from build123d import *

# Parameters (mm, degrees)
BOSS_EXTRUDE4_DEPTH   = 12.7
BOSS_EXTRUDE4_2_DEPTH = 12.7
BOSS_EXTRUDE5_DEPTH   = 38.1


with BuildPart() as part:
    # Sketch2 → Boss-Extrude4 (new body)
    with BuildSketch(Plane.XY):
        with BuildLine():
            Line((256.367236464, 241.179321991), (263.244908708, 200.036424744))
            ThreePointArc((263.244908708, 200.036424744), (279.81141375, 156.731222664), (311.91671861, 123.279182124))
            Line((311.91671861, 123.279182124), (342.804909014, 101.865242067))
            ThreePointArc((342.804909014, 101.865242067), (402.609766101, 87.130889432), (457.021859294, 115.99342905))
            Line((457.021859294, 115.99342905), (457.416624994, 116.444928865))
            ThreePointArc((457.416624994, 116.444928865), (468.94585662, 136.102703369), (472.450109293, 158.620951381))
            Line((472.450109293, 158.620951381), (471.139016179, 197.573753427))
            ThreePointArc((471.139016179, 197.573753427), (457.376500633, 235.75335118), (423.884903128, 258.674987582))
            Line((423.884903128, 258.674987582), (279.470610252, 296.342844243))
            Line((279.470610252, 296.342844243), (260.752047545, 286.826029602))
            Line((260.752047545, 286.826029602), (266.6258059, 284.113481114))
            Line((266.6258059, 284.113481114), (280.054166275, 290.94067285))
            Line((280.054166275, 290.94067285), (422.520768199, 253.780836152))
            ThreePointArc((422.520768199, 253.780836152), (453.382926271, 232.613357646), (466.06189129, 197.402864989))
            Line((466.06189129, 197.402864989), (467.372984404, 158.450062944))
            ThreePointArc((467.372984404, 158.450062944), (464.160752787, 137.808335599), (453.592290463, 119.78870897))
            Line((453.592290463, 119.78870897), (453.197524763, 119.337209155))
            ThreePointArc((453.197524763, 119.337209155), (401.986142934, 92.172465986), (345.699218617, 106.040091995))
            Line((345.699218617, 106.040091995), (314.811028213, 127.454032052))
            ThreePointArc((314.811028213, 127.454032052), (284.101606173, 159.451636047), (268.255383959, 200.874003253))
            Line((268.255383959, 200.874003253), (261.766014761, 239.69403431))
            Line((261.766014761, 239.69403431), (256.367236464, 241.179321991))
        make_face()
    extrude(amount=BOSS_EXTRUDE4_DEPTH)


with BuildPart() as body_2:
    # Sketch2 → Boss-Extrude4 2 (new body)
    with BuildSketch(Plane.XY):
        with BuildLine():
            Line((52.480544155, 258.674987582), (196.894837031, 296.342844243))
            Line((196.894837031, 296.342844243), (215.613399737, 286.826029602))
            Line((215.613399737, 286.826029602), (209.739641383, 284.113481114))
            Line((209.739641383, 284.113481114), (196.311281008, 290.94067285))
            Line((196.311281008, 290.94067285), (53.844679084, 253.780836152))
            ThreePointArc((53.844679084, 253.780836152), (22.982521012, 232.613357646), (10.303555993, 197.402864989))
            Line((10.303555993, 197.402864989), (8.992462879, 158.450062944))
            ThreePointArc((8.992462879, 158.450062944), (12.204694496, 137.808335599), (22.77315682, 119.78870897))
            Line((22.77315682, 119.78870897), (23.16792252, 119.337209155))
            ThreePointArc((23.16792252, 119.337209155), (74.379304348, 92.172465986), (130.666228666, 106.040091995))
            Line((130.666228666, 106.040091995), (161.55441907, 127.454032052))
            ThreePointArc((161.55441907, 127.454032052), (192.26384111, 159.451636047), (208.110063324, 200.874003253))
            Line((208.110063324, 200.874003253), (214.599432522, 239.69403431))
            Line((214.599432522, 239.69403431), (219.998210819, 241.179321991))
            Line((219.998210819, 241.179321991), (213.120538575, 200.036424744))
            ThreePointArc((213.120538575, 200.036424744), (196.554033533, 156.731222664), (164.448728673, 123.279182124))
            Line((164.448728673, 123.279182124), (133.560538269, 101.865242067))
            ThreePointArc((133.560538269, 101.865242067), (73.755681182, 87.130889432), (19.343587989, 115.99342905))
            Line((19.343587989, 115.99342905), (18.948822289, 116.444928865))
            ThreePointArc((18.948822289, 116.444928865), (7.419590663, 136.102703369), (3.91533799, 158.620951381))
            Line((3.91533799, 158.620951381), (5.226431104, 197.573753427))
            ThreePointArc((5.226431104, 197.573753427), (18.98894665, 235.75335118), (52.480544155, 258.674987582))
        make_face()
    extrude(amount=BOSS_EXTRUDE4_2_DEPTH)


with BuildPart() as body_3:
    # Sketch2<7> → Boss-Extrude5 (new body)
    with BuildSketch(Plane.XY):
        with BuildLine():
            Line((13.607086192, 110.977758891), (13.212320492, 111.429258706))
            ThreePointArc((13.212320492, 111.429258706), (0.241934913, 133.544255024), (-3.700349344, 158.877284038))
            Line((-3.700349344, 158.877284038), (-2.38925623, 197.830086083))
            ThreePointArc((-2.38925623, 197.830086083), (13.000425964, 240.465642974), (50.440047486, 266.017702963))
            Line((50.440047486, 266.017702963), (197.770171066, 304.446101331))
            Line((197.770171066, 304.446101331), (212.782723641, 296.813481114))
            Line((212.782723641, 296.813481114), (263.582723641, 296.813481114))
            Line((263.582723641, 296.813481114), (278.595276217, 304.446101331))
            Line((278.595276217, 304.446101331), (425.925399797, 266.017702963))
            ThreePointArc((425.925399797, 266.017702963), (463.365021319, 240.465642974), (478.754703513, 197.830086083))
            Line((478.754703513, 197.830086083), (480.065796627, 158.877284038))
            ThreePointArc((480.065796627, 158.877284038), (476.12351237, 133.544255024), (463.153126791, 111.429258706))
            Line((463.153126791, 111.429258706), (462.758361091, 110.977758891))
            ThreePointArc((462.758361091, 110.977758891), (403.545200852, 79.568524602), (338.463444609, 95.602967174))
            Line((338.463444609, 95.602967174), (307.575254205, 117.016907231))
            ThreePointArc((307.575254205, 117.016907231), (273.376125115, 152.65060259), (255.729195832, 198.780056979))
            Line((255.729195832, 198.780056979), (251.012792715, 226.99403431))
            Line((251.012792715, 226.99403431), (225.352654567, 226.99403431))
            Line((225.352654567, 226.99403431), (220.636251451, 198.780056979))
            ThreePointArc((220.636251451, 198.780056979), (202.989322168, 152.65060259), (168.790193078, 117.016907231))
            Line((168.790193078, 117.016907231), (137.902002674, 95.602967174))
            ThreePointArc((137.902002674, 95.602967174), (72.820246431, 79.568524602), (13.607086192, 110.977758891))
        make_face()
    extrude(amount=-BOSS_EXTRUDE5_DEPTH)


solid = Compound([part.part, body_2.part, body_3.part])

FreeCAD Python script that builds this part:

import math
import FreeCAD as App
import Part
import Sketcher

V = App.Vector
Q = App.Units.Quantity

doc = App.newDocument("Part")
body = doc.addObject("PartDesign::Body", "Body")

# Sketch on XY plane
sketch1 = doc.addObject("Sketcher::SketchObject", "Sketch")
body.addObject(sketch1)
sketch1.AttachmentSupport = (doc.XY_Plane, [""])
sketch1.MapMode = "FlatFace"
sketch1.addGeometry([
    Part.LineSegment(V(256.4, 241.2, 0), V(263.2, 200, 0)),  # 0
    Part.ArcOfCircle(Part.Circle(V(378.5, 219.3, 0), V(0, 0, 1), 116.8), math.radians(-171), math.radians(-125)),  # 1
    Part.LineSegment(V(311.9, 123.3, 0), V(342.8, 101.9, 0)),  # 2
    Part.ArcOfCircle(Part.Circle(V(392, 172.8, 0), V(0, 0, 1), 86.4), math.radians(-125), math.radians(-41)),  # 3
    Part.LineSegment(V(457, 116, 0), V(457.4, 116.4, 0)),  # 4
    Part.ArcOfCircle(Part.Circle(V(411.5, 156.6, 0), V(0, 0, 1), 61), math.radians(-41), math.radians(2)),  # 5
    Part.LineSegment(V(472.5, 158.6, 0), V(471.1, 197.6, 0)),  # 6
    Part.ArcOfCircle(Part.Circle(V(405.1, 195.4, 0), V(0, 0, 1), 66), math.radians(2), math.radians(74)),  # 7
    Part.LineSegment(V(423.9, 258.7, 0), V(279.5, 296.3, 0)),  # 8
    Part.LineSegment(V(279.5, 296.3, 0), V(260.8, 286.8, 0)),  # 9
    Part.LineSegment(V(260.8, 286.8, 0), V(266.6, 284.1, 0)),  # 10
    Part.LineSegment(V(266.6, 284.1, 0), V(280.1, 290.9, 0)),  # 11
    Part.LineSegment(V(280.1, 290.9, 0), V(422.5, 253.8, 0)),  # 12
    Part.ArcOfCircle(Part.Circle(V(405.1, 195.4, 0), V(0, 0, 1), 61), math.radians(2), math.radians(73)),  # 13
    Part.LineSegment(V(466.1, 197.4, 0), V(467.4, 158.5, 0)),  # 14
    Part.ArcOfCircle(Part.Circle(V(411.5, 156.6, 0), V(0, 0, 1), 55.9), math.radians(-41), math.radians(2)),  # 15
    Part.LineSegment(V(453.6, 119.8, 0), V(453.2, 119.3, 0)),  # 16
    Part.ArcOfCircle(Part.Circle(V(392, 172.8, 0), V(0, 0, 1), 81.3), math.radians(-125), math.radians(-41)),  # 17
    Part.LineSegment(V(345.7, 106, 0), V(314.8, 127.5, 0)),  # 18
    Part.ArcOfCircle(Part.Circle(V(378.5, 219.3, 0), V(0, 0, 1), 111.8), math.radians(-171), math.radians(-125)),  # 19
    Part.LineSegment(V(268.3, 200.9, 0), V(261.8, 239.7, 0)),  # 20
    Part.LineSegment(V(261.8, 239.7, 0), V(256.4, 241.2, 0)),  # 21
], False)
sketch1.addConstraint([
    Sketcher.Constraint("Tangent", 0, 2, 1, 1),
    Sketcher.Constraint("Tangent", 1, 2, 2, 1),
    Sketcher.Constraint("Tangent", 2, 2, 3, 1),
    Sketcher.Constraint("Tangent", 3, 2, 4, 1),
    Sketcher.Constraint("Tangent", 4, 2, 5, 1),
    Sketcher.Constraint("Tangent", 5, 2, 6, 1),
    Sketcher.Constraint("Tangent", 6, 2, 7, 1),
    Sketcher.Constraint("Coincident", 7, 2, 8, 1),
    Sketcher.Constraint("Coincident", 8, 2, 9, 1),
    Sketcher.Constraint("Coincident", 9, 2, 10, 1),
    Sketcher.Constraint("Coincident", 10, 2, 11, 1),
    Sketcher.Constraint("Coincident", 11, 2, 12, 1),
    Sketcher.Constraint("Coincident", 12, 2, 13, 2),
    Sketcher.Constraint("Tangent", 13, 1, 14, 1),
    Sketcher.Constraint("Tangent", 14, 2, 15, 2),
    Sketcher.Constraint("Tangent", 15, 1, 16, 1),
    Sketcher.Constraint("Tangent", 16, 2, 17, 2),
    Sketcher.Constraint("Tangent", 17, 1, 18, 1),
    Sketcher.Constraint("Tangent", 18, 2, 19, 2),
    Sketcher.Constraint("Tangent", 19, 1, 20, 1),
    Sketcher.Constraint("Coincident", 20, 2, 21, 1),
    Sketcher.Constraint("Coincident", 21, 2, 0, 1),
    Sketcher.Constraint("Coincident", 13, 3, 7, 3),
    Sketcher.Constraint("Coincident", 15, 3, 5, 3),
    Sketcher.Constraint("Coincident", 17, 3, 3, 3),
    Sketcher.Constraint("Coincident", 19, 3, 1, 3),
    Sketcher.Constraint("Equal", 5, 13),
    Sketcher.Constraint("Parallel", 9, 11),
    Sketcher.Constraint("Parallel", 8, 12),
    Sketcher.Constraint("Parallel", 6, 14),
    Sketcher.Constraint("Parallel", 4, 16),
    Sketcher.Constraint("Parallel", 2, 18),
    Sketcher.Constraint("Parallel", 0, 20),
    Sketcher.Constraint("Radius", 1, Q("4.6 in")),
    Sketcher.Constraint("Radius", 3, Q("3.4 in")),
    Sketcher.Constraint("Radius", 5, Q("2.4 in")),
    Sketcher.Constraint("Radius", 7, Q("2.6 in")),
    Sketcher.Constraint("DistanceX", 2, 2, 15, 3, Q("2.7055001 in")),
    Sketcher.Constraint("Distance", 12, Q("147.233101 mm")),
    Sketcher.Constraint("DistanceY", 5, 3, 3, 3, Q("16.267401 mm")),
    Sketcher.Constraint("DistanceY", 3, 2, 4, 2, Q("0.4515 mm")),
    Sketcher.Constraint("DistanceX", 5, 3, 5, 2, Q("60.925499 mm")),
    Sketcher.Constraint("DistanceX", 0, 2, 8, 2, Q("16.225702 mm")),
    Sketcher.Constraint("DistanceY", 1, 3, 9, 2, Q("67.525299 mm")),
    Sketcher.Constraint("DistanceX", 1, 2, 17, 1, Q("33.7825 mm")),
    Sketcher.Constraint("Distance", 0, Q("41.713791 mm")),
    Sketcher.Constraint("Distance", 6, Q("38.974861 mm")),
    Sketcher.Constraint("Distance", 10, Q("6.46985 mm")),
    Sketcher.Constraint("DistanceX", -1, 1, 1, 3, Q("378.485839 mm")),
    Sketcher.Constraint("DistanceY", -1, 1, 1, 3, Q("219.30073 mm")),
    Sketcher.Constraint("DistanceX", -1, 1, 0, 2, Q("263.244909 mm")),
    Sketcher.Constraint("DistanceY", -1, 1, 10, 2, Q("284.113481 mm")),
    Sketcher.Constraint("DistanceX", -1, 1, 12, 2, Q("422.520768 mm")),
    Sketcher.Constraint("DistanceX", 13, 3, 7, 2, Q("18.748511 mm")),
    Sketcher.Constraint("DistanceY", 0, 2, 8, 2, Q("96.306419 mm")),
    Sketcher.Constraint("DistanceX", 20, 2, 19, 1, Q("6.489369 mm")),
])
pad1 = doc.addObject("PartDesign::Pad", "Pad")
body.addObject(pad1)
pad1.Profile = sketch1
pad1.Length = Q("0.5 in")
body2 = doc.addObject("PartDesign::Body", "Body001")

# Sketch on XY plane
sketch2 = doc.addObject("Sketcher::SketchObject", "Sketch001")
body2.addObject(sketch2)
sketch2.AttachmentSupport = (doc.getObject("XY_Plane001"), [""])
sketch2.MapMode = "FlatFace"
sketch2.addGeometry([
    Part.LineSegment(V(196.9, 296.3, 0), V(52.5, 258.7, 0)),  # 0
    Part.ArcOfCircle(Part.Circle(V(71.2, 195.4, 0), V(0, 0, 1), 66), math.radians(106), math.radians(178)),  # 1
    Part.LineSegment(V(5.2, 197.6, 0), V(3.9, 158.6, 0)),  # 2
    Part.ArcOfCircle(Part.Circle(V(64.8, 156.6, 0), V(0, 0, 1), 61), math.radians(178), math.radians(221)),  # 3
    Part.LineSegment(V(18.9, 116.4, 0), V(19.3, 116, 0)),  # 4
    Part.ArcOfCircle(Part.Circle(V(84.4, 172.8, 0), V(0, 0, 1), 86.4), math.radians(-139), math.radians(-55)),  # 5
    Part.LineSegment(V(133.6, 101.9, 0), V(164.4, 123.3, 0)),  # 6
    Part.ArcOfCircle(Part.Circle(V(97.9, 219.3, 0), V(0, 0, 1), 116.8), math.radians(-55), math.radians(-9)),  # 7
    Part.LineSegment(V(213.1, 200, 0), V(220, 241.2, 0)),  # 8
    Part.LineSegment(V(220, 241.2, 0), V(214.6, 239.7, 0)),  # 9
    Part.LineSegment(V(214.6, 239.7, 0), V(208.1, 200.9, 0)),  # 10
    Part.ArcOfCircle(Part.Circle(V(97.9, 219.3, 0), V(0, 0, 1), 111.8), math.radians(-55), math.radians(-9)),  # 11
    Part.LineSegment(V(161.6, 127.5, 0), V(130.7, 106, 0)),  # 12
    Part.ArcOfCircle(Part.Circle(V(84.4, 172.8, 0), V(0, 0, 1), 81.3), math.radians(-139), math.radians(-55)),  # 13
    Part.LineSegment(V(23.2, 119.3, 0), V(22.8, 119.8, 0)),  # 14
    Part.ArcOfCircle(Part.Circle(V(64.8, 156.6, 0), V(0, 0, 1), 55.9), math.radians(178), math.radians(221)),  # 15
    Part.LineSegment(V(9, 158.5, 0), V(10.3, 197.4, 0)),  # 16
    Part.ArcOfCircle(Part.Circle(V(71.2, 195.4, 0), V(0, 0, 1), 61), math.radians(107), math.radians(178)),  # 17
    Part.LineSegment(V(53.8, 253.8, 0), V(196.3, 290.9, 0)),  # 18
    Part.LineSegment(V(196.3, 290.9, 0), V(209.7, 284.1, 0)),  # 19
    Part.LineSegment(V(209.7, 284.1, 0), V(215.6, 286.8, 0)),  # 20
    Part.LineSegment(V(215.6, 286.8, 0), V(196.9, 296.3, 0)),  # 21
], False)
sketch2.addConstraint([
    Sketcher.Constraint("Coincident", 0, 2, 1, 1),
    Sketcher.Constraint("Tangent", 1, 2, 2, 1),
    Sketcher.Constraint("Tangent", 2, 2, 3, 1),
    Sketcher.Constraint("Tangent", 3, 2, 4, 1),
    Sketcher.Constraint("Tangent", 4, 2, 5, 1),
    Sketcher.Constraint("Tangent", 5, 2, 6, 1),
    Sketcher.Constraint("Tangent", 6, 2, 7, 1),
    Sketcher.Constraint("Tangent", 7, 2, 8, 1),
    Sketcher.Constraint("Coincident", 8, 2, 9, 1),
    Sketcher.Constraint("Coincident", 9, 2, 10, 1),
    Sketcher.Constraint("Tangent", 10, 2, 11, 2),
    Sketcher.Constraint("Tangent", 11, 1, 12, 1),
    Sketcher.Constraint("Tangent", 12, 2, 13, 2),
    Sketcher.Constraint("Tangent", 13, 1, 14, 1),
    Sketcher.Constraint("Tangent", 14, 2, 15, 2),
    Sketcher.Constraint("Tangent", 15, 1, 16, 1),
    Sketcher.Constraint("Tangent", 16, 2, 17, 2),
    Sketcher.Constraint("Coincident", 17, 1, 18, 1),
    Sketcher.Constraint("Coincident", 18, 2, 19, 1),
    Sketcher.Constraint("Coincident", 19, 2, 20, 1),
    Sketcher.Constraint("Coincident", 20, 2, 21, 1),
    Sketcher.Constraint("Coincident", 21, 2, 0, 1),
    Sketcher.Constraint("Coincident", 11, 3, 7, 3),
    Sketcher.Constraint("Coincident", 13, 3, 5, 3),
    Sketcher.Constraint("Coincident", 15, 3, 3, 3),
    Sketcher.Constraint("Coincident", 17, 3, 1, 3),
    Sketcher.Constraint("Equal", 3, 17),
    Sketcher.Constraint("Parallel", 8, 10),
    Sketcher.Constraint("Parallel", 6, 12),
    Sketcher.Constraint("Parallel", 4, 14),
    Sketcher.Constraint("Parallel", 2, 16),
    Sketcher.Constraint("Parallel", 0, 18),
    Sketcher.Constraint("Parallel", 19, 21),
    Sketcher.Constraint("Radius", 1, Q("2.6 in")),
    Sketcher.Constraint("Radius", 3, Q("2.4 in")),
    Sketcher.Constraint("Radius", 5, Q("3.4 in")),
    Sketcher.Constraint("Radius", 7, Q("4.6 in")),
    Sketcher.Constraint("DistanceX", 15, 3, 5, 2, Q("2.7055001 in")),
    Sketcher.Constraint("Distance", 18, Q("147.233101 mm")),
    Sketcher.Constraint("DistanceX", -1, 1, 20, 2, Q("215.6134 mm")),
    Sketcher.Constraint("DistanceY", 3, 3, 5, 3, Q("16.267401 mm")),
    Sketcher.Constraint("DistanceX", 2, 2, 3, 3, Q("60.925499 mm")),
    Sketcher.Constraint("DistanceY", 4, 2, 3, 2, Q("0.4515 mm")),
    Sketcher.Constraint("DistanceX", 5, 2, 7, 2, Q("79.56 mm")),
    Sketcher.Constraint("DistanceX", 12, 2, 6, 2, Q("33.7825 mm")),
    Sketcher.Constraint("Distance", 2, Q("38.974861 mm")),
    Sketcher.Constraint("Distance", 8, Q("41.713791 mm")),
    Sketcher.Constraint("Distance", 20, Q("6.46985 mm")),
    Sketcher.Constraint("DistanceY", -1, 1, 3, 3, Q("156.57029 mm")),
    Sketcher.Constraint("DistanceX", -1, 1, 1, 2, Q("5.226431 mm")),
    Sketcher.Constraint("DistanceX", -1, 1, 17, 1, Q("53.844679 mm")),
    Sketcher.Constraint("DistanceX", -1, 1, 18, 2, Q("196.311281 mm")),
    Sketcher.Constraint("DistanceX", -1, 1, 19, 2, Q("209.739641 mm")),
    Sketcher.Constraint("DistanceY", -1, 1, 19, 2, Q("284.113481 mm")),
    Sketcher.Constraint("DistanceX", 0, 2, 17, 3, Q("18.748511 mm")),
    Sketcher.Constraint("DistanceX", 9, 2, 8, 2, Q("5.398778 mm")),
])
pad2 = doc.addObject("PartDesign::Pad", "Pad001")
body2.addObject(pad2)
pad2.Profile = sketch2
pad2.Length = Q("0.5 in")
body3 = doc.addObject("PartDesign::Body", "Body002")

# Sketch on XY plane
sketch3 = doc.addObject("Sketcher::SketchObject", "Sketch002")
body3.addObject(sketch3)
sketch3.AttachmentSupport = (doc.getObject("XY_Plane002"), [""])
sketch3.MapMode = "FlatFace"
sketch3.addGeometry([
    Part.LineSegment(V(13.21232, 111.429259, 0), V(13.607086, 110.977759, 0)),  # 0
    Part.ArcOfCircle(Part.Circle(V(84.357275, 172.837691, 0), V(0, 0, 1), 93.98), math.radians(-138.835402), math.radians(-55.267486)),  # 1
    Part.LineSegment(V(137.902003, 95.602967, 0), V(168.790193, 117.016907, 0)),  # 2
    Part.ArcOfCircle(Part.Circle(V(97.879608, 219.30073, 0), V(0, 0, 1), 124.46), math.radians(-55.267486), math.radians(-9.490128)),  # 3
    Part.LineSegment(V(220.636251, 198.780057, 0), V(225.352655, 226.994034, 0)),  # 4
    Part.LineSegment(V(225.352655, 226.994034, 0), V(251.012793, 226.994034, 0)),  # 5
    Part.LineSegment(V(251.012793, 226.994034, 0), V(255.729196, 198.780057, 0)),  # 6
    Part.ArcOfCircle(Part.Circle(V(378.485839, 219.30073, 0), V(0, 0, 1), 124.46), math.radians(-170.509872), math.radians(-124.732514)),  # 7
    Part.LineSegment(V(307.575254, 117.016907, 0), V(338.463445, 95.602967, 0)),  # 8
    Part.ArcOfCircle(Part.Circle(V(392.008172, 172.837691, 0), V(0, 0, 1), 93.98), math.radians(-124.732514), math.radians(-41.164598)),  # 9
    Part.LineSegment(V(462.758361, 110.977759, 0), V(463.153127, 111.429259, 0)),  # 10
    Part.ArcOfCircle(Part.Circle(V(411.524611, 156.57029, 0), V(0, 0, 1), 68.58), math.radians(-41.164598), math.radians(1.927763)),  # 11
    Part.LineSegment(V(480.065797, 158.877284, 0), V(478.754704, 197.830086, 0)),  # 12
    Part.ArcOfCircle(Part.Circle(V(405.136393, 195.352204, 0), V(0, 0, 1), 73.66), math.radians(1.927763), math.radians(73.606701)),  # 13
    Part.LineSegment(V(425.9254, 266.017703, 0), V(278.595276, 304.446101, 0)),  # 14
    Part.LineSegment(V(278.595276, 304.446101, 0), V(263.582724, 296.813481, 0)),  # 15
    Part.LineSegment(V(263.582724, 296.813481, 0), V(212.782724, 296.813481, 0)),  # 16
    Part.LineSegment(V(212.782724, 296.813481, 0), V(197.770171, 304.446101, 0)),  # 17
    Part.LineSegment(V(197.770171, 304.446101, 0), V(50.440047, 266.017703, 0)),  # 18
    Part.ArcOfCircle(Part.Circle(V(71.229055, 195.352204, 0), V(0, 0, 1), 73.66), math.radians(106.393299), math.radians(178.072237)),  # 19
    Part.LineSegment(V(-2.389256, 197.830086, 0), V(-3.700349, 158.877284, 0)),  # 20
    Part.ArcOfCircle(Part.Circle(V(64.840837, 156.57029, 0), V(0, 0, 1), 68.58), math.radians(178.072237), math.radians(221.164598)),  # 21
], False)
sketch3.addConstraint([
    Sketcher.Constraint("Coincident", 0, 2, 1, 1),
    Sketcher.Constraint("Coincident", 1, 2, 2, 1),
    Sketcher.Constraint("Coincident", 2, 2, 3, 1),
    Sketcher.Constraint("Coincident", 3, 2, 4, 1),
    Sketcher.Constraint("Coincident", 4, 2, 5, 1),
    Sketcher.Constraint("Coincident", 5, 2, 6, 1),
    Sketcher.Constraint("Coincident", 6, 2, 7, 1),
    Sketcher.Constraint("Coincident", 7, 2, 8, 1),
    Sketcher.Constraint("Coincident", 8, 2, 9, 1),
    Sketcher.Constraint("Coincident", 9, 2, 10, 1),
    Sketcher.Constraint("Coincident", 10, 2, 11, 1),
    Sketcher.Constraint("Coincident", 11, 2, 12, 1),
    Sketcher.Constraint("Coincident", 12, 2, 13, 1),
    Sketcher.Constraint("Coincident", 13, 2, 14, 1),
    Sketcher.Constraint("Coincident", 14, 2, 15, 1),
    Sketcher.Constraint("Coincident", 15, 2, 16, 1),
    Sketcher.Constraint("Coincident", 16, 2, 17, 1),
    Sketcher.Constraint("Coincident", 17, 2, 18, 1),
    Sketcher.Constraint("Coincident", 18, 2, 19, 1),
    Sketcher.Constraint("Coincident", 19, 2, 20, 1),
    Sketcher.Constraint("Coincident", 20, 2, 21, 1),
    Sketcher.Constraint("Coincident", 21, 2, 0, 1),
    Sketcher.Constraint("Horizontal", 5),
    Sketcher.Constraint("Horizontal", 16),
    Sketcher.Constraint("Radius", 1, Q("3.7 in")),
    Sketcher.Constraint("Radius", 3, Q("4.9 in")),
    Sketcher.Constraint("Radius", 7, Q("4.9 in")),
    Sketcher.Constraint("Radius", 9, Q("3.7 in")),
    Sketcher.Constraint("Radius", 11, Q("2.7 in")),
    Sketcher.Constraint("Radius", 13, Q("2.9 in")),
    Sketcher.Constraint("Radius", 19, Q("2.9 in")),
    Sketcher.Constraint("Radius", 21, Q("2.7 in")),
    Sketcher.Constraint("DistanceX", 16, 2, 16, 1, Q("2 in")),
    Sketcher.Constraint("DistanceX", -1, 1, 10, 2, Q("18.2343751 in")),
    Sketcher.Constraint("DistanceX", 5, 1, 5, 2, Q("25.660138 mm")),
    Sketcher.Constraint("DistanceX", -1, 1, 13, 2, Q("425.9254 mm")),
    Sketcher.Constraint("DistanceY", -1, 1, 14, 2, Q("304.446101 mm")),
    Sketcher.Constraint("DistanceY", -1, 1, 17, 2, Q("304.446101 mm")),
    Sketcher.Constraint("DistanceY", 11, 3, 9, 3, Q("16.267401 mm")),
    Sketcher.Constraint("DistanceY", 11, 3, 1, 3, Q("16.267401 mm")),
    Sketcher.Constraint("DistanceY", 21, 3, 1, 3, Q("16.267401 mm")),
    Sketcher.Constraint("DistanceX", 2, 2, 5, 2, Q("82.2226 mm")),
    Sketcher.Constraint("DistanceY", 9, 2, 10, 2, Q("0.4515 mm")),
    Sketcher.Constraint("DistanceY", 13, 3, 13, 2, Q("70.665499 mm")),
    Sketcher.Constraint("DistanceY", 19, 3, 18, 2, Q("70.665499 mm")),
    Sketcher.Constraint("DistanceY", 18, 2, 17, 2, Q("38.428398 mm")),
    Sketcher.Constraint("DistanceY", 0, 2, 21, 2, Q("0.4515 mm")),
    Sketcher.Constraint("Distance", 4, Q("28.605471 mm")),
    Sketcher.Constraint("Distance", 6, Q("28.605471 mm")),
    Sketcher.Constraint("Distance", 12, Q("38.974861 mm")),
    Sketcher.Constraint("Distance", 14, Q("152.259342 mm")),
    Sketcher.Constraint("Distance", 18, Q("152.259342 mm")),
    Sketcher.Constraint("Distance", 20, Q("38.974861 mm")),
    Sketcher.Constraint("DistanceY", -1, 1, 1, 3, Q("172.837691 mm")),
    Sketcher.Constraint("DistanceY", -1, 1, 3, 3, Q("219.30073 mm")),
    Sketcher.Constraint("DistanceX", -1, 1, 7, 3, Q("378.485839 mm")),
    Sketcher.Constraint("DistanceY", -1, 1, 7, 3, Q("219.30073 mm")),
    Sketcher.Constraint("DistanceX", -1, 1, 11, 3, Q("411.524611 mm")),
    Sketcher.Constraint("DistanceY", -1, 1, 0, 2, Q("110.977759 mm")),
    Sketcher.Constraint("DistanceX", -1, 1, 3, 2, Q("220.636251 mm")),
    Sketcher.Constraint("DistanceX", -1, 1, 9, 2, Q("462.758361 mm")),
    Sketcher.Constraint("DistanceY", -1, 1, 15, 2, Q("296.813481 mm")),
    Sketcher.Constraint("DistanceX", -1, 1, 17, 2, Q("197.770171 mm")),
    Sketcher.Constraint("DistanceX", 20, 2, -1, 1, Q("3.700349 mm")),
    Sketcher.Constraint("DistanceX", 3, 3, 7, 3, Q("280.606232 mm")),
    Sketcher.Constraint("DistanceX", 19, 3, 1, 3, Q("13.12822 mm")),
    Sketcher.Constraint("DistanceX", 21, 3, 1, 3, Q("19.516438 mm")),
    Sketcher.Constraint("DistanceX", 19, 3, 1, 2, Q("66.672948 mm")),
    Sketcher.Constraint("DistanceX", 1, 2, 2, 2, Q("30.88819 mm")),
    Sketcher.Constraint("DistanceX", 6, 2, 7, 2, Q("51.846058 mm")),
    Sketcher.Constraint("DistanceX", 7, 2, 8, 2, Q("30.88819 mm")),
    Sketcher.Constraint("DistanceX", 10, 2, 11, 2, Q("16.91267 mm")),
    Sketcher.Constraint("DistanceY", 11, 2, 13, 3, Q("36.47492 mm")),
    Sketcher.Constraint("DistanceX", 5, 2, 15, 2, Q("12.569931 mm")),
])
pad3 = doc.addObject("PartDesign::Pad", "Pad002")
body3.addObject(pad3)
pad3.Profile = sketch3
pad3.Length = Q("1.5 in")
pad3.Reversed = True

doc.recompute()
